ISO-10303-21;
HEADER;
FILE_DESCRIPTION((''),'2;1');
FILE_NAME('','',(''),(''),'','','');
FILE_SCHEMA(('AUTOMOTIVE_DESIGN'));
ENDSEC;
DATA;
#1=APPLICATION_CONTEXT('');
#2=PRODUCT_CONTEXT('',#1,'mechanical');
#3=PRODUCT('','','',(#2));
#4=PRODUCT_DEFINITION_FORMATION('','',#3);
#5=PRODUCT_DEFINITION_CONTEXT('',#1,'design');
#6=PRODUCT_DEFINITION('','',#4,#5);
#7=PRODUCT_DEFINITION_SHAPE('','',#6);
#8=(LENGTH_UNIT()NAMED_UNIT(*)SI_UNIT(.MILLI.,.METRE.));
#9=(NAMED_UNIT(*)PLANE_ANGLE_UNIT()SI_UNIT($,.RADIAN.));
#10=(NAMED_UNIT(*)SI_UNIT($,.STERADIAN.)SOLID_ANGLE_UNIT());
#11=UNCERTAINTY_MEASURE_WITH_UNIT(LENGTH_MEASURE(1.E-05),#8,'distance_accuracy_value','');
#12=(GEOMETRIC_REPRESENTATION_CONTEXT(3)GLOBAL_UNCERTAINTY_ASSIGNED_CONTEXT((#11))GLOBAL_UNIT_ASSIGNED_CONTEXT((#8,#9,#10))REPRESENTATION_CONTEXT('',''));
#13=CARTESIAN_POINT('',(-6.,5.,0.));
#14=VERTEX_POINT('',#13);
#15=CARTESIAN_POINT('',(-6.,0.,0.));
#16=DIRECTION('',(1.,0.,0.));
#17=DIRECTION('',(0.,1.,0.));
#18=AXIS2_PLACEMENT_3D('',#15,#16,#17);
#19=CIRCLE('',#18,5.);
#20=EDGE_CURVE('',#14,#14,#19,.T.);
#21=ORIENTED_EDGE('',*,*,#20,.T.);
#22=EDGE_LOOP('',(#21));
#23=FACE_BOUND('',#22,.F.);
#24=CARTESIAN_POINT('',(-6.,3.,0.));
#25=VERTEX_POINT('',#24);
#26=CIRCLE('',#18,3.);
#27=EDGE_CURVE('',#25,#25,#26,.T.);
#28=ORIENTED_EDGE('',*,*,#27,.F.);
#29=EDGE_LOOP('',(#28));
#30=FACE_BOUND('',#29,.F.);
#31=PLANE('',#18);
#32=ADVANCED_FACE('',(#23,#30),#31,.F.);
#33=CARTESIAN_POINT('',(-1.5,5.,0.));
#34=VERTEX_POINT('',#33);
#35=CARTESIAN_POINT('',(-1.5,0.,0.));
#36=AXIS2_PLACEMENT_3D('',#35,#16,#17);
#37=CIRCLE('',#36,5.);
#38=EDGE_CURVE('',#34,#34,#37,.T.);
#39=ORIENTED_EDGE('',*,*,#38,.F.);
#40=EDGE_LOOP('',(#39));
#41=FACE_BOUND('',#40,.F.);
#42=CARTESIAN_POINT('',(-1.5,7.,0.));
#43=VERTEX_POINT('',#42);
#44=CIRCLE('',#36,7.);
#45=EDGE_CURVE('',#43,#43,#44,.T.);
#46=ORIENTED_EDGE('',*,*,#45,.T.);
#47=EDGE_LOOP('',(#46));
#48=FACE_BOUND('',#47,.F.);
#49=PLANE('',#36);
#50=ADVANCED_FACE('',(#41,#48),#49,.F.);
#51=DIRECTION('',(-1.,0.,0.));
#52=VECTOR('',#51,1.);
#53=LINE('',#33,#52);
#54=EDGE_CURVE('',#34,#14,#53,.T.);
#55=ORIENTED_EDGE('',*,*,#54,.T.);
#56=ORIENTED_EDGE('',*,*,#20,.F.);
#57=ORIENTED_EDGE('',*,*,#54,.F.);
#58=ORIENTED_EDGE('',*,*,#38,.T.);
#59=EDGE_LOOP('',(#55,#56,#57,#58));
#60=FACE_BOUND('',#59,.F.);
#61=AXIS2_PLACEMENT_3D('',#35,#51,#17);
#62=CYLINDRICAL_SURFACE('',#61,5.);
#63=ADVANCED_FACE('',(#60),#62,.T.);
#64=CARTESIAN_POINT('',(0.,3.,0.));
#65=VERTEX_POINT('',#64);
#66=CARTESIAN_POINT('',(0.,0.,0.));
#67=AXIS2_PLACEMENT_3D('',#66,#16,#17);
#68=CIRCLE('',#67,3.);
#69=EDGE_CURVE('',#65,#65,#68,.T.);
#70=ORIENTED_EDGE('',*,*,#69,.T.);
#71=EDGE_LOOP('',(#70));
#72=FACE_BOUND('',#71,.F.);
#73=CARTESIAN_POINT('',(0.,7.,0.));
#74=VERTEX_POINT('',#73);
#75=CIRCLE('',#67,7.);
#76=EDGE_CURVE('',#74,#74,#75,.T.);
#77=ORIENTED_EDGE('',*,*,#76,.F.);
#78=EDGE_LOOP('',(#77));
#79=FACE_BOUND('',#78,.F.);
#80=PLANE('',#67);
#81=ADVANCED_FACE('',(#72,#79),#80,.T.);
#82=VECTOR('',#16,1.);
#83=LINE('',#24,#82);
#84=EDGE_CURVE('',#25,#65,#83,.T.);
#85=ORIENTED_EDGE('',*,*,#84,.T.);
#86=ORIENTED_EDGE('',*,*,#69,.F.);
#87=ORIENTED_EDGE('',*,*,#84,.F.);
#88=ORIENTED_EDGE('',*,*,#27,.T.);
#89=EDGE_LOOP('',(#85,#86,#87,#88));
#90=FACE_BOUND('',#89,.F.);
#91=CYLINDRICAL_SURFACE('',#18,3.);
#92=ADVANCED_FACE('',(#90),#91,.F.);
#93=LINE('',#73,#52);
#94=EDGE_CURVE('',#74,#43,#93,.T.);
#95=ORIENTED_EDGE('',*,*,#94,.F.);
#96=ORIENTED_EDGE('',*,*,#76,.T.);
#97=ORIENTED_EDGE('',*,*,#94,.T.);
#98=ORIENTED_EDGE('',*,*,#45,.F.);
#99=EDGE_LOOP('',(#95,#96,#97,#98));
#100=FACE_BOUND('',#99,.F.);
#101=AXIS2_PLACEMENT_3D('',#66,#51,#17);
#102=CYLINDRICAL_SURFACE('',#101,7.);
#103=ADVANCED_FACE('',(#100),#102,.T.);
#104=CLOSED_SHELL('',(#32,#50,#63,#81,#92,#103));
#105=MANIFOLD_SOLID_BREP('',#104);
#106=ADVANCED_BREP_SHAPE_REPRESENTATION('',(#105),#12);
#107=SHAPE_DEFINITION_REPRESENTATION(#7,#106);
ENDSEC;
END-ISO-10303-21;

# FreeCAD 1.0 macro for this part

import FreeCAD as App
import Part
import Sketcher

V = App.Vector

doc = App.newDocument("Part")
body = doc.addObject("PartDesign::Body", "Body")

sketch1 = doc.addObject("Sketcher::SketchObject", "Sketch")
body.addObject(sketch1)
sketch1.AttachmentSupport = (doc.XY_Plane, [""])
sketch1.MapMode = "FlatFace"
sketch1.addGeometry([
    Part.LineSegment(V(-6, 3, 0), V(0, 3, 0)),
    Part.LineSegment(V(0, 3, 0), V(0, 7, 0)),
    Part.LineSegment(V(0, 7, 0), V(-1.5, 7, 0)),
    Part.LineSegment(V(-1.5, 7, 0), V(-1.5, 5, 0)),
    Part.LineSegment(V(-1.5, 5, 0), V(-6, 5, 0)),
    Part.LineSegment(V(-6, 5, 0), V(-6, 3, 0)),
], False)
sketch1.addConstraint([
    Sketcher.Constraint("Coincident", 0, 2, 1, 1),
    Sketcher.Constraint("Coincident", 1, 2, 2, 1),
    Sketcher.Constraint("Coincident", 2, 2, 3, 1),
    Sketcher.Constraint("Coincident", 3, 2, 4, 1),
    Sketcher.Constraint("Coincident", 4, 2, 5, 1),
    Sketcher.Constraint("Coincident", 5, 2, 0, 1),
    Sketcher.Constraint("Horizontal", 0),
    Sketcher.Constraint("Vertical", 1),
    Sketcher.Constraint("Horizontal", 2),
    Sketcher.Constraint("Vertical", 3),
    Sketcher.Constraint("Horizontal", 4),
    Sketcher.Constraint("Vertical", 5),
    Sketcher.Constraint("PointOnObject", 0, 2, -2),
    Sketcher.Constraint("Equal", 3, 5),
    Sketcher.Constraint("DistanceX", 0, 1, 0, 2, 6.0),
    Sketcher.Constraint("DistanceX", 2, 2, 2, 1, 1.5),
    Sketcher.Constraint("DistanceY", 1, 1, 1, 2, 4.0),
    Sketcher.Constraint("DistanceY", -1, 1, 0, 2, 3.0),
])
revolution = doc.addObject("PartDesign::Revolution", "Revolution")
body.addObject(revolution)
revolution.Profile = sketch1
revolution.ReferenceAxis = (sketch1, ["H_Axis"])
revolution.Angle = 360

doc.recompute()
